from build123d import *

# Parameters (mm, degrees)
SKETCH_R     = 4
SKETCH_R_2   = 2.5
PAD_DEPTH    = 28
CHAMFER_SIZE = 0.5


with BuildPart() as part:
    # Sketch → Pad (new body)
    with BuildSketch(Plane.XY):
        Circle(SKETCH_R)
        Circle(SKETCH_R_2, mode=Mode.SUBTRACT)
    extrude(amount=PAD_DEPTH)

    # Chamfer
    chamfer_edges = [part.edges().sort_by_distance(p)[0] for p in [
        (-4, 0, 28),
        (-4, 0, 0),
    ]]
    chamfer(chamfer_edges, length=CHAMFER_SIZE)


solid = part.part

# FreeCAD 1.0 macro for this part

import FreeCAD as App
import Part
import Sketcher
from FreeCAD import Vector


def edges_at(feature, points):
    """Names of the edges that pass closest to the given points."""
    edges = feature.Shape.Edges
    near = lambda p: min(range(len(edges)), key=lambda i: edges[i].distToShape(Part.Vertex(*p))[0])
    return sorted({f"Edge{near(p) + 1}" for p in points})

doc = App.newDocument("Part")
body = doc.addObject("PartDesign::Body", "Body")

# Sketch on XY plane
sketch1 = doc.addObject("Sketcher::SketchObject", "Sketch")
body.addObject(sketch1)
sketch1.AttachmentSupport = (doc.XY_Plane, [""])
sketch1.MapMode = "FlatFace"
sketch1.addGeometry([
    Part.Circle(Vector(0, 0, 0), Vector(0, 0, 1), 4),
    Part.Circle(Vector(0, 0, 0), Vector(0, 0, 1), 2.5),
], False)
sketch1.addConstraint([
    Sketcher.Constraint("Coincident", 0, 3, -1, 1),
    Sketcher.Constraint("Coincident", 1, 3, -1, 1),
    Sketcher.Constraint("Diameter", 0, 8.0),
    Sketcher.Constraint("Diameter", 1, 5.0),
])
pad1 = doc.addObject("PartDesign::Pad", "Pad")
body.addObject(pad1)
pad1.Profile = sketch1
pad1.Length = 28
doc.recompute()

chamfer = doc.addObject("PartDesign::Chamfer", "Chamfer")
body.addObject(chamfer)
chamfer.Base = (pad1, edges_at(pad1, [(-4, 0, 28), (-4, 0, 0)]))
chamfer.Size = 0.5

doc.recompute()
